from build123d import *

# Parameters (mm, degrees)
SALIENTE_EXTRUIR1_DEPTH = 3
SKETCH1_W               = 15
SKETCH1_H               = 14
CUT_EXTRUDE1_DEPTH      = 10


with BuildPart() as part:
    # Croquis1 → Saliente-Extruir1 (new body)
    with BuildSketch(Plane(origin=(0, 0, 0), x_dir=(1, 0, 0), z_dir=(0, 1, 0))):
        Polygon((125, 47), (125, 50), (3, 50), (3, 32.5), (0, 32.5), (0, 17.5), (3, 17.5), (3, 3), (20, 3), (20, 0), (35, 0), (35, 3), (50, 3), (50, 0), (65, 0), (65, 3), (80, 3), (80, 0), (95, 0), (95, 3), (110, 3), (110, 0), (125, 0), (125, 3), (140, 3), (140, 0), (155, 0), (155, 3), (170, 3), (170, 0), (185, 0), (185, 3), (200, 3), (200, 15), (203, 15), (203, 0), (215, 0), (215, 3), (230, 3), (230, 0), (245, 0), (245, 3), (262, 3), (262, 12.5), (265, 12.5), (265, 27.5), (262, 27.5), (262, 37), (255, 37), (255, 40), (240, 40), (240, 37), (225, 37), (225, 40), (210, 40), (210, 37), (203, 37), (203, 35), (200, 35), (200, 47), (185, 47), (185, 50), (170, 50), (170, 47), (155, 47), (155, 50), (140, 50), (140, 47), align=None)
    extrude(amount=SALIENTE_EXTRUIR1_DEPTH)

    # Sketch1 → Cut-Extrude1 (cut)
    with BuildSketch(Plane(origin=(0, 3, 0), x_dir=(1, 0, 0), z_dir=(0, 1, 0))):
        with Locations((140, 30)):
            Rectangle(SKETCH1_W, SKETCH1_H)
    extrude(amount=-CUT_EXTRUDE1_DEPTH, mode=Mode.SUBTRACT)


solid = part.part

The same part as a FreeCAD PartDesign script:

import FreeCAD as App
import Part
import Sketcher
from FreeCAD import Vector

doc = App.newDocument("Part")
body = doc.addObject("PartDesign::Body", "Body")

sketch1 = doc.addObject("Sketcher::SketchObject", "Sketch")
body.addObject(sketch1)
sketch1.AttachmentSupport = (doc.XZ_Plane, [""])
sketch1.MapMode = "FlatFace"
sketch1.addGeometry([
    Part.LineSegment(Vector(125, -47, 0), Vector(125, -50, 0)),
    Part.LineSegment(Vector(125, -50, 0), Vector(3, -50, 0)),
    Part.LineSegment(Vector(3, -50, 0), Vector(3, -32.5, 0)),
    Part.LineSegment(Vector(3, -32.5, 0), Vector(0, -32.5, 0)),
    Part.LineSegment(Vector(0, -32.5, 0), Vector(0, -17.5, 0)),
    Part.LineSegment(Vector(0, -17.5, 0), Vector(3, -17.5, 0)),
    Part.LineSegment(Vector(3, -17.5, 0), Vector(3, -3, 0)),
    Part.LineSegment(Vector(3, -3, 0), Vector(20, -3, 0)),
    Part.LineSegment(Vector(20, -3, 0), Vector(20, 0, 0)),
    Part.LineSegment(Vector(20, 0, 0), Vector(35, 0, 0)),
    Part.LineSegment(Vector(35, 0, 0), Vector(35, -3, 0)),
    Part.LineSegment(Vector(35, -3, 0), Vector(50, -3, 0)),
    Part.LineSegment(Vector(50, -3, 0), Vector(50, 0, 0)),
    Part.LineSegment(Vector(50, 0, 0), Vector(65, 0, 0)),
    Part.LineSegment(Vector(65, 0, 0), Vector(65, -3, 0)),
    Part.LineSegment(Vector(65, -3, 0), Vector(80, -3, 0)),
    Part.LineSegment(Vector(80, -3, 0), Vector(80, 0, 0)),
    Part.LineSegment(Vector(80, 0, 0), Vector(95, 0, 0)),
    Part.LineSegment(Vector(95, 0, 0), Vector(95, -3, 0)),
    Part.LineSegment(Vector(95, -3, 0), Vector(110, -3, 0)),
    Part.LineSegment(Vector(110, -3, 0), Vector(110, 0, 0)),
    Part.LineSegment(Vector(110, 0, 0), Vector(125, 0, 0)),
    Part.LineSegment(Vector(125, 0, 0), Vector(125, -3, 0)),
    Part.LineSegment(Vector(125, -3, 0), Vector(140, -3, 0)),
    Part.LineSegment(Vector(140, -3, 0), Vector(140, 0, 0)),
    Part.LineSegment(Vector(140, 0, 0), Vector(155, 0, 0)),
    Part.LineSegment(Vector(155, 0, 0), Vector(155, -3, 0)),
    Part.LineSegment(Vector(155, -3, 0), Vector(170, -3, 0)),
    Part.LineSegment(Vector(170, -3, 0), Vector(170, 0, 0)),
    Part.LineSegment(Vector(170, 0, 0), Vector(185, 0, 0)),
    Part.LineSegment(Vector(185, 0, 0), Vector(185, -3, 0)),
    Part.LineSegment(Vector(185, -3, 0), Vector(200, -3, 0)),
    Part.LineSegment(Vector(200, -3, 0), Vector(200, -15, 0)),
    Part.LineSegment(Vector(200, -15, 0), Vector(203, -15, 0)),
    Part.LineSegment(Vector(203, -15, 0), Vector(203, 0, 0)),
    Part.LineSegment(Vector(203, 0, 0), Vector(215, 0, 0)),
    Part.LineSegment(Vector(215, 0, 0), Vector(215, -3, 0)),
    Part.LineSegment(Vector(215, -3, 0), Vector(230, -3, 0)),
    Part.LineSegment(Vector(230, -3, 0), Vector(230, 0, 0)),
    Part.LineSegment(Vector(230, 0, 0), Vector(245, 0, 0)),
    Part.LineSegment(Vector(245, 0, 0), Vector(245, -3, 0)),
    Part.LineSegment(Vector(245, -3, 0), Vector(262, -3, 0)),
    Part.LineSegment(Vector(262, -3, 0), Vector(262, -12.5, 0)),
    Part.LineSegment(Vector(262, -12.5, 0), Vector(265, -12.5, 0)),
    Part.LineSegment(Vector(265, -12.5, 0), Vector(265, -27.5, 0)),
    Part.LineSegment(Vector(265, -27.5, 0), Vector(262, -27.5, 0)),
    Part.LineSegment(Vector(262, -27.5, 0), Vector(262, -37, 0)),
    Part.LineSegment(Vector(262, -37, 0), Vector(255, -37, 0)),
    Part.LineSegment(Vector(255, -37, 0), Vector(255, -40, 0)),
    Part.LineSegment(Vector(255, -40, 0), Vector(240, -40, 0)),
    Part.LineSegment(Vector(240, -40, 0), Vector(240, -37, 0)),
    Part.LineSegment(Vector(240, -37, 0), Vector(225, -37, 0)),
    Part.LineSegment(Vector(225, -37, 0), Vector(225, -40, 0)),
    Part.LineSegment(Vector(225, -40, 0), Vector(210, -40, 0)),
    Part.LineSegment(Vector(210, -40, 0), Vector(210, -37, 0)),
    Part.LineSegment(Vector(210, -37, 0), Vector(203, -37, 0)),
    Part.LineSegment(Vector(203, -37, 0), Vector(203, -35, 0)),
    Part.LineSegment(Vector(203, -35, 0), Vector(200, -35, 0)),
    Part.LineSegment(Vector(200, -35, 0), Vector(200, -47, 0)),
    Part.LineSegment(Vector(200, -47, 0), Vector(185, -47, 0)),
    Part.LineSegment(Vector(185, -47, 0), Vector(185, -50, 0)),
    Part.LineSegment(Vector(185, -50, 0), Vector(170, -50, 0)),
    Part.LineSegment(Vector(170, -50, 0), Vector(170, -47, 0)),
    Part.LineSegment(Vector(170, -47, 0), Vector(155, -47, 0)),
    Part.LineSegment(Vector(155, -47, 0), Vector(155, -50, 0)),
    Part.LineSegment(Vector(155, -50, 0), Vector(140, -50, 0)),
    Part.LineSegment(Vector(140, -50, 0), Vector(140, -47, 0)),
    Part.LineSegment(Vector(140, -47, 0), Vector(125, -47, 0)),
], False)
sketch1.addConstraint([
    Sketcher.Constraint("Coincident", 0, 2, 1, 1),
    Sketcher.Constraint("Coincident", 1, 2, 2, 1),
    Sketcher.Constraint("Coincident", 2, 2, 3, 1),
    Sketcher.Constraint("Coincident", 3, 2, 4, 1),
    Sketcher.Constraint("Coincident", 4, 2, 5, 1),
    Sketcher.Constraint("Coincident", 5, 2, 6, 1),
    Sketcher.Constraint("Coincident", 6, 2, 7, 1),
    Sketcher.Constraint("Coincident", 7, 2, 8, 1),
    Sketcher.Constraint("Coincident", 8, 2, 9, 1),
    Sketcher.Constraint("Coincident", 9, 2, 10, 1),
    Sketcher.Constraint("Coincident", 10, 2, 11, 1),
    Sketcher.Constraint("Coincident", 11, 2, 12, 1),
    Sketcher.Constraint("Coincident", 12, 2, 13, 1),
    Sketcher.Constraint("Coincident", 13, 2, 14, 1),
    Sketcher.Constraint("Coincident", 14, 2, 15, 1),
    Sketcher.Constraint("Coincident", 15, 2, 16, 1),
    Sketcher.Constraint("Coincident", 16, 2, 17, 1),
    Sketcher.Constraint("Coincident", 17, 2, 18, 1),
    Sketcher.Constraint("Coincident", 18, 2, 19, 1),
    Sketcher.Constraint("Coincident", 19, 2, 20, 1),
    Sketcher.Constraint("Coincident", 20, 2, 21, 1),
    Sketcher.Constraint("Coincident", 21, 2, 22, 1),
    Sketcher.Constraint("Coincident", 22, 2, 23, 1),
    Sketcher.Constraint("Coincident", 23, 2, 24, 1),
    Sketcher.Constraint("Coincident", 24, 2, 25, 1),
    Sketcher.Constraint("Coincident", 25, 2, 26, 1),
    Sketcher.Constraint("Coincident", 26, 2, 27, 1),
    Sketcher.Constraint("Coincident", 27, 2, 28, 1),
    Sketcher.Constraint("Coincident", 28, 2, 29, 1),
    Sketcher.Constraint("Coincident", 29, 2, 30, 1),
    Sketcher.Constraint("Coincident", 30, 2, 31, 1),
    Sketcher.Constraint("Coincident", 31, 2, 32, 1),
    Sketcher.Constraint("Coincident", 32, 2, 33, 1),
    Sketcher.Constraint("Coincident", 33, 2, 34, 1),
    Sketcher.Constraint("Coincident", 34, 2, 35, 1),
    Sketcher.Constraint("Coincident", 35, 2, 36, 1),
    Sketcher.Constraint("Coincident", 36, 2, 37, 1),
    Sketcher.Constraint("Coincident", 37, 2, 38, 1),
    Sketcher.Constraint("Coincident", 38, 2, 39, 1),
    Sketcher.Constraint("Coincident", 39, 2, 40, 1),
    Sketcher.Constraint("Coincident", 40, 2, 41, 1),
    Sketcher.Constraint("Coincident", 41, 2, 42, 1),
    Sketcher.Constraint("Coincident", 42, 2, 43, 1),
    Sketcher.Constraint("Coincident", 43, 2, 44, 1),
    Sketcher.Constraint("Coincident", 44, 2, 45, 1),
    Sketcher.Constraint("Coincident", 45, 2, 46, 1),
    Sketcher.Constraint("Coincident", 46, 2, 47, 1),
    Sketcher.Constraint("Coincident", 47, 2, 48, 1),
    Sketcher.Constraint("Coincident", 48, 2, 49, 1),
    Sketcher.Constraint("Coincident", 49, 2, 50, 1),
    Sketcher.Constraint("Coincident", 50, 2, 51, 1),
    Sketcher.Constraint("Coincident", 51, 2, 52, 1),
    Sketcher.Constraint("Coincident", 52, 2, 53, 1),
    Sketcher.Constraint("Coincident", 53, 2, 54, 1),
    Sketcher.Constraint("Coincident", 54, 2, 55, 1),
    Sketcher.Constraint("Coincident", 55, 2, 56, 1),
    Sketcher.Constraint("Coincident", 56, 2, 57, 1),
    Sketcher.Constraint("Coincident", 57, 2, 58, 1),
    Sketcher.Constraint("Coincident", 58, 2, 59, 1),
    Sketcher.Constraint("Coincident", 59, 2, 60, 1),
    Sketcher.Constraint("Coincident", 60, 2, 61, 1),
    Sketcher.Constraint("Coincident", 61, 2, 62, 1),
    Sketcher.Constraint("Coincident", 62, 2, 63, 1),
    Sketcher.Constraint("Coincident", 63, 2, 64, 1),
    Sketcher.Constraint("Coincident", 64, 2, 65, 1),
    Sketcher.Constraint("Coincident", 65, 2, 66, 1),
    Sketcher.Constraint("Coincident", 66, 2, 67, 1),
    Sketcher.Constraint("Coincident", 67, 2, 0, 1),
    Sketcher.Constraint("Vertical", 0),
    Sketcher.Constraint("Horizontal", 1),
    Sketcher.Constraint("Vertical", 2),
    Sketcher.Constraint("Horizontal", 3),
    Sketcher.Constraint("Vertical", 4),
    Sketcher.Constraint("Horizontal", 5),
    Sketcher.Constraint("Vertical", 6),
    Sketcher.Constraint("Horizontal", 7),
    Sketcher.Constraint("Vertical", 8),
    Sketcher.Constraint("Horizontal", 9),
    Sketcher.Constraint("Vertical", 10),
    Sketcher.Constraint("Horizontal", 11),
    Sketcher.Constraint("Vertical", 12),
    Sketcher.Constraint("Horizontal", 13),
    Sketcher.Constraint("Vertical", 14),
    Sketcher.Constraint("Horizontal", 15),
    Sketcher.Constraint("Vertical", 16),
    Sketcher.Constraint("Horizontal", 17),
    Sketcher.Constraint("Vertical", 18),
    Sketcher.Constraint("Horizontal", 19),
    Sketcher.Constraint("Vertical", 20),
    Sketcher.Constraint("Horizontal", 21),
    Sketcher.Constraint("Vertical", 22),
    Sketcher.Constraint("Horizontal", 23),
    Sketcher.Constraint("Vertical", 24),
    Sketcher.Constraint("Horizontal", 25),
    Sketcher.Constraint("Vertical", 26),
    Sketcher.Constraint("Horizontal", 27),
    Sketcher.Constraint("Vertical", 28),
    Sketcher.Constraint("Horizontal", 29),
    Sketcher.Constraint("Vertical", 30),
    Sketcher.Constraint("Horizontal", 31),
    Sketcher.Constraint("Vertical", 32),
    Sketcher.Constraint("Horizontal", 33),
    Sketcher.Constraint("Vertical", 34),
    Sketcher.Constraint("Horizontal", 35),
    Sketcher.Constraint("Vertical", 36),
    Sketcher.Constraint("Horizontal", 37),
    Sketcher.Constraint("Vertical", 38),
    Sketcher.Constraint("Horizontal", 39),
    Sketcher.Constraint("Vertical", 40),
    Sketcher.Constraint("Horizontal", 41),
    Sketcher.Constraint("Vertical", 42),
    Sketcher.Constraint("Horizontal", 43),
    Sketcher.Constraint("Vertical", 44),
    Sketcher.Constraint("Horizontal", 45),
    Sketcher.Constraint("Vertical", 46),
    Sketcher.Constraint("Horizontal", 47),
    Sketcher.Constraint("Vertical", 48),
    Sketcher.Constraint("Horizontal", 49),
    Sketcher.Constraint("Vertical", 50),
    Sketcher.Constraint("Horizontal", 51),
    Sketcher.Constraint("Vertical", 52),
    Sketcher.Constraint("Horizontal", 53),
    Sketcher.Constraint("Vertical", 54),
    Sketcher.Constraint("Horizontal", 55),
    Sketcher.Constraint("Vertical", 56),
    Sketcher.Constraint("Horizontal", 57),
    Sketcher.Constraint("Vertical", 58),
    Sketcher.Constraint("Horizontal", 59),
    Sketcher.Constraint("Vertical", 60),
    Sketcher.Constraint("Horizontal", 61),
    Sketcher.Constraint("Vertical", 62),
    Sketcher.Constraint("Horizontal", 63),
    Sketcher.Constraint("Vertical", 64),
    Sketcher.Constraint("Horizontal", 65),
    Sketcher.Constraint("Vertical", 66),
    Sketcher.Constraint("Horizontal", 67),
    Sketcher.Constraint("PointOnObject", 3, 2, -2),
    Sketcher.Constraint("PointOnObject", 8, 2, -1),
    Sketcher.Constraint("PointOnObject", 12, 2, -1),
    Sketcher.Constraint("PointOnObject", 16, 2, -1),
    Sketcher.Constraint("PointOnObject", 20, 2, -1),
    Sketcher.Constraint("PointOnObject", 24, 2, -1),
    Sketcher.Constraint("PointOnObject", 28, 2, -1),
    Sketcher.Constraint("PointOnObject", 34, 2, -1),
    Sketcher.Constraint("PointOnObject", 38, 2, -1),
    Sketcher.Constraint("Horizontal", 7, 2, 10, 2),
    Sketcher.Constraint("Horizontal", 11, 2, 14, 2),
    Sketcher.Constraint("Horizontal", 15, 2, 18, 2),
    Sketcher.Constraint("Horizontal", 19, 2, 22, 2),
    Sketcher.Constraint("Horizontal", 23, 2, 26, 2),
    Sketcher.Constraint("Horizontal", 27, 2, 30, 2),
    Sketcher.Constraint("Horizontal", 31, 2, 36, 2),
    Sketcher.Constraint("Horizontal", 37, 2, 40, 2),
    Sketcher.Constraint("Horizontal", 47, 2, 50, 2),
    Sketcher.Constraint("Horizontal", 49, 2, 52, 2),
    Sketcher.Constraint("Horizontal", 51, 2, 54, 2),
    Sketcher.Constraint("Horizontal", 1, 2, 60, 2),
    Sketcher.Constraint("Horizontal", 59, 2, 62, 2),
    Sketcher.Constraint("Horizontal", 61, 2, 64, 2),
    Sketcher.Constraint("Horizontal", 63, 2, 66, 2),
    Sketcher.Constraint("Vertical", 2, 2, 5, 2),
    Sketcher.Constraint("Vertical", 0, 2, 21, 2),
    Sketcher.Constraint("Vertical", 42, 2, 45, 2),
    Sketcher.Constraint("Vertical", 34, 2, 55, 2),
    Sketcher.Constraint("Vertical", 32, 2, 57, 2),
    Sketcher.Constraint("Vertical", 30, 2, 59, 2),
    Sketcher.Constraint("Vertical", 28, 2, 61, 2),
    Sketcher.Constraint("Vertical", 26, 2, 63, 2),
    Sketcher.Constraint("Vertical", 24, 2, 65, 2),
    Sketcher.Constraint("Equal", 9, 11),
    Sketcher.Constraint("Equal", 11, 13),
    Sketcher.Constraint("Equal", 13, 15),
    Sketcher.Constraint("Equal", 15, 17),
    Sketcher.Constraint("Equal", 17, 19),
    Sketcher.Constraint("Equal", 19, 21),
    Sketcher.Constraint("Equal", 21, 23),
    Sketcher.Constraint("Equal", 23, 25),
    Sketcher.Constraint("Equal", 25, 27),
    Sketcher.Constraint("Equal", 27, 29),
    Sketcher.Constraint("Equal", 29, 31),
    Sketcher.Constraint("Equal", 5, 33),
    Sketcher.Constraint("Equal", 31, 37),
    Sketcher.Constraint("Equal", 37, 39),
    Sketcher.Constraint("Equal", 7, 41),
    Sketcher.Constraint("Equal", 33, 43),
    Sketcher.Constraint("Equal", 39, 49),
    Sketcher.Constraint("Equal", 49, 51),
    Sketcher.Constraint("Equal", 51, 53),
    Sketcher.Constraint("Equal", 47, 55),
    Sketcher.Constraint("Equal", 57, 0),
    Sketcher.Constraint("Equal", 67, 4),
    Sketcher.Constraint("Equal", 0, 8),
    Sketcher.Constraint("Equal", 35, 32),
    Sketcher.Constraint("Equal", 4, 34),
    Sketcher.Constraint("Equal", 34, 44),
    Sketcher.Constraint("Equal", 42, 46),
    Sketcher.Constraint("Equal", 40, 48),
    Sketcher.Constraint("Equal", 32, 58),
    Sketcher.Constraint("DistanceX", 1, 2, 1, 1, 122.0),
    Sketcher.Constraint("DistanceX", 3, 2, 3, 1, 3.0),
    Sketcher.Constraint("DistanceX", 7, 1, 7, 2, 17.0),
    Sketcher.Constraint("DistanceY", 56, 1, 56, 2, 2.0),
    Sketcher.Constraint("DistanceY", 2, 1, 2, 2, 17.5),
    Sketcher.Constraint("DistanceY", 6, 1, 6, 2, 14.5),
])
pad1 = doc.addObject("PartDesign::Pad", "Pad")
body.addObject(pad1)
pad1.Profile = sketch1
pad1.Length = 3
pad1.Reversed = True

sketch2 = doc.addObject("Sketcher::SketchObject", "Sketch001")
body.addObject(sketch2)
sketch2.AttachmentSupport = (doc.XZ_Plane, [""])
sketch2.MapMode = "FlatFace"
sketch2.AttachmentOffset = App.Placement(Vector(0, 0, -3), App.Rotation())
sketch2.addGeometry([
    Part.LineSegment(Vector(132, -37, 0), Vector(132, -23, 0)),
    Part.LineSegment(Vector(132, -23, 0), Vector(148, -23, 0)),
    Part.LineSegment(Vector(148, -23, 0), Vector(148, -37, 0)),
    Part.LineSegment(Vector(148, -37, 0), Vector(132, -37, 0)),
], False)
sketch2.addConstraint([
    Sketcher.Constraint("Coincident", 0, 2, 1, 1),
    Sketcher.Constraint("Coincident", 1, 2, 2, 1),
    Sketcher.Constraint("Coincident", 2, 2, 3, 1),
    Sketcher.Constraint("Coincident", 3, 2, 0, 1),
    Sketcher.Constraint("Vertical", 0),
    Sketcher.Constraint("Horizontal", 1),
    Sketcher.Constraint("Vertical", 2),
    Sketcher.Constraint("Horizontal", 3),
    Sketcher.Constraint("DistanceX", 1, 1, 1, 2, 15.0),
    Sketcher.Constraint("DistanceY", 0, 1, 0, 2, 14.0),
    Sketcher.Constraint("DistanceY", 0, 2, -1, 1, 23.0),
    Sketcher.Constraint("DistanceX", -1, 1, 0, 2, 132.5),
])
pocket1 = doc.addObject("PartDesign::Pocket", "Pocket")
body.addObject(pocket1)
pocket1.Profile = sketch2
pocket1.Length = 10
pocket1.Reversed = True

doc.recompute()
